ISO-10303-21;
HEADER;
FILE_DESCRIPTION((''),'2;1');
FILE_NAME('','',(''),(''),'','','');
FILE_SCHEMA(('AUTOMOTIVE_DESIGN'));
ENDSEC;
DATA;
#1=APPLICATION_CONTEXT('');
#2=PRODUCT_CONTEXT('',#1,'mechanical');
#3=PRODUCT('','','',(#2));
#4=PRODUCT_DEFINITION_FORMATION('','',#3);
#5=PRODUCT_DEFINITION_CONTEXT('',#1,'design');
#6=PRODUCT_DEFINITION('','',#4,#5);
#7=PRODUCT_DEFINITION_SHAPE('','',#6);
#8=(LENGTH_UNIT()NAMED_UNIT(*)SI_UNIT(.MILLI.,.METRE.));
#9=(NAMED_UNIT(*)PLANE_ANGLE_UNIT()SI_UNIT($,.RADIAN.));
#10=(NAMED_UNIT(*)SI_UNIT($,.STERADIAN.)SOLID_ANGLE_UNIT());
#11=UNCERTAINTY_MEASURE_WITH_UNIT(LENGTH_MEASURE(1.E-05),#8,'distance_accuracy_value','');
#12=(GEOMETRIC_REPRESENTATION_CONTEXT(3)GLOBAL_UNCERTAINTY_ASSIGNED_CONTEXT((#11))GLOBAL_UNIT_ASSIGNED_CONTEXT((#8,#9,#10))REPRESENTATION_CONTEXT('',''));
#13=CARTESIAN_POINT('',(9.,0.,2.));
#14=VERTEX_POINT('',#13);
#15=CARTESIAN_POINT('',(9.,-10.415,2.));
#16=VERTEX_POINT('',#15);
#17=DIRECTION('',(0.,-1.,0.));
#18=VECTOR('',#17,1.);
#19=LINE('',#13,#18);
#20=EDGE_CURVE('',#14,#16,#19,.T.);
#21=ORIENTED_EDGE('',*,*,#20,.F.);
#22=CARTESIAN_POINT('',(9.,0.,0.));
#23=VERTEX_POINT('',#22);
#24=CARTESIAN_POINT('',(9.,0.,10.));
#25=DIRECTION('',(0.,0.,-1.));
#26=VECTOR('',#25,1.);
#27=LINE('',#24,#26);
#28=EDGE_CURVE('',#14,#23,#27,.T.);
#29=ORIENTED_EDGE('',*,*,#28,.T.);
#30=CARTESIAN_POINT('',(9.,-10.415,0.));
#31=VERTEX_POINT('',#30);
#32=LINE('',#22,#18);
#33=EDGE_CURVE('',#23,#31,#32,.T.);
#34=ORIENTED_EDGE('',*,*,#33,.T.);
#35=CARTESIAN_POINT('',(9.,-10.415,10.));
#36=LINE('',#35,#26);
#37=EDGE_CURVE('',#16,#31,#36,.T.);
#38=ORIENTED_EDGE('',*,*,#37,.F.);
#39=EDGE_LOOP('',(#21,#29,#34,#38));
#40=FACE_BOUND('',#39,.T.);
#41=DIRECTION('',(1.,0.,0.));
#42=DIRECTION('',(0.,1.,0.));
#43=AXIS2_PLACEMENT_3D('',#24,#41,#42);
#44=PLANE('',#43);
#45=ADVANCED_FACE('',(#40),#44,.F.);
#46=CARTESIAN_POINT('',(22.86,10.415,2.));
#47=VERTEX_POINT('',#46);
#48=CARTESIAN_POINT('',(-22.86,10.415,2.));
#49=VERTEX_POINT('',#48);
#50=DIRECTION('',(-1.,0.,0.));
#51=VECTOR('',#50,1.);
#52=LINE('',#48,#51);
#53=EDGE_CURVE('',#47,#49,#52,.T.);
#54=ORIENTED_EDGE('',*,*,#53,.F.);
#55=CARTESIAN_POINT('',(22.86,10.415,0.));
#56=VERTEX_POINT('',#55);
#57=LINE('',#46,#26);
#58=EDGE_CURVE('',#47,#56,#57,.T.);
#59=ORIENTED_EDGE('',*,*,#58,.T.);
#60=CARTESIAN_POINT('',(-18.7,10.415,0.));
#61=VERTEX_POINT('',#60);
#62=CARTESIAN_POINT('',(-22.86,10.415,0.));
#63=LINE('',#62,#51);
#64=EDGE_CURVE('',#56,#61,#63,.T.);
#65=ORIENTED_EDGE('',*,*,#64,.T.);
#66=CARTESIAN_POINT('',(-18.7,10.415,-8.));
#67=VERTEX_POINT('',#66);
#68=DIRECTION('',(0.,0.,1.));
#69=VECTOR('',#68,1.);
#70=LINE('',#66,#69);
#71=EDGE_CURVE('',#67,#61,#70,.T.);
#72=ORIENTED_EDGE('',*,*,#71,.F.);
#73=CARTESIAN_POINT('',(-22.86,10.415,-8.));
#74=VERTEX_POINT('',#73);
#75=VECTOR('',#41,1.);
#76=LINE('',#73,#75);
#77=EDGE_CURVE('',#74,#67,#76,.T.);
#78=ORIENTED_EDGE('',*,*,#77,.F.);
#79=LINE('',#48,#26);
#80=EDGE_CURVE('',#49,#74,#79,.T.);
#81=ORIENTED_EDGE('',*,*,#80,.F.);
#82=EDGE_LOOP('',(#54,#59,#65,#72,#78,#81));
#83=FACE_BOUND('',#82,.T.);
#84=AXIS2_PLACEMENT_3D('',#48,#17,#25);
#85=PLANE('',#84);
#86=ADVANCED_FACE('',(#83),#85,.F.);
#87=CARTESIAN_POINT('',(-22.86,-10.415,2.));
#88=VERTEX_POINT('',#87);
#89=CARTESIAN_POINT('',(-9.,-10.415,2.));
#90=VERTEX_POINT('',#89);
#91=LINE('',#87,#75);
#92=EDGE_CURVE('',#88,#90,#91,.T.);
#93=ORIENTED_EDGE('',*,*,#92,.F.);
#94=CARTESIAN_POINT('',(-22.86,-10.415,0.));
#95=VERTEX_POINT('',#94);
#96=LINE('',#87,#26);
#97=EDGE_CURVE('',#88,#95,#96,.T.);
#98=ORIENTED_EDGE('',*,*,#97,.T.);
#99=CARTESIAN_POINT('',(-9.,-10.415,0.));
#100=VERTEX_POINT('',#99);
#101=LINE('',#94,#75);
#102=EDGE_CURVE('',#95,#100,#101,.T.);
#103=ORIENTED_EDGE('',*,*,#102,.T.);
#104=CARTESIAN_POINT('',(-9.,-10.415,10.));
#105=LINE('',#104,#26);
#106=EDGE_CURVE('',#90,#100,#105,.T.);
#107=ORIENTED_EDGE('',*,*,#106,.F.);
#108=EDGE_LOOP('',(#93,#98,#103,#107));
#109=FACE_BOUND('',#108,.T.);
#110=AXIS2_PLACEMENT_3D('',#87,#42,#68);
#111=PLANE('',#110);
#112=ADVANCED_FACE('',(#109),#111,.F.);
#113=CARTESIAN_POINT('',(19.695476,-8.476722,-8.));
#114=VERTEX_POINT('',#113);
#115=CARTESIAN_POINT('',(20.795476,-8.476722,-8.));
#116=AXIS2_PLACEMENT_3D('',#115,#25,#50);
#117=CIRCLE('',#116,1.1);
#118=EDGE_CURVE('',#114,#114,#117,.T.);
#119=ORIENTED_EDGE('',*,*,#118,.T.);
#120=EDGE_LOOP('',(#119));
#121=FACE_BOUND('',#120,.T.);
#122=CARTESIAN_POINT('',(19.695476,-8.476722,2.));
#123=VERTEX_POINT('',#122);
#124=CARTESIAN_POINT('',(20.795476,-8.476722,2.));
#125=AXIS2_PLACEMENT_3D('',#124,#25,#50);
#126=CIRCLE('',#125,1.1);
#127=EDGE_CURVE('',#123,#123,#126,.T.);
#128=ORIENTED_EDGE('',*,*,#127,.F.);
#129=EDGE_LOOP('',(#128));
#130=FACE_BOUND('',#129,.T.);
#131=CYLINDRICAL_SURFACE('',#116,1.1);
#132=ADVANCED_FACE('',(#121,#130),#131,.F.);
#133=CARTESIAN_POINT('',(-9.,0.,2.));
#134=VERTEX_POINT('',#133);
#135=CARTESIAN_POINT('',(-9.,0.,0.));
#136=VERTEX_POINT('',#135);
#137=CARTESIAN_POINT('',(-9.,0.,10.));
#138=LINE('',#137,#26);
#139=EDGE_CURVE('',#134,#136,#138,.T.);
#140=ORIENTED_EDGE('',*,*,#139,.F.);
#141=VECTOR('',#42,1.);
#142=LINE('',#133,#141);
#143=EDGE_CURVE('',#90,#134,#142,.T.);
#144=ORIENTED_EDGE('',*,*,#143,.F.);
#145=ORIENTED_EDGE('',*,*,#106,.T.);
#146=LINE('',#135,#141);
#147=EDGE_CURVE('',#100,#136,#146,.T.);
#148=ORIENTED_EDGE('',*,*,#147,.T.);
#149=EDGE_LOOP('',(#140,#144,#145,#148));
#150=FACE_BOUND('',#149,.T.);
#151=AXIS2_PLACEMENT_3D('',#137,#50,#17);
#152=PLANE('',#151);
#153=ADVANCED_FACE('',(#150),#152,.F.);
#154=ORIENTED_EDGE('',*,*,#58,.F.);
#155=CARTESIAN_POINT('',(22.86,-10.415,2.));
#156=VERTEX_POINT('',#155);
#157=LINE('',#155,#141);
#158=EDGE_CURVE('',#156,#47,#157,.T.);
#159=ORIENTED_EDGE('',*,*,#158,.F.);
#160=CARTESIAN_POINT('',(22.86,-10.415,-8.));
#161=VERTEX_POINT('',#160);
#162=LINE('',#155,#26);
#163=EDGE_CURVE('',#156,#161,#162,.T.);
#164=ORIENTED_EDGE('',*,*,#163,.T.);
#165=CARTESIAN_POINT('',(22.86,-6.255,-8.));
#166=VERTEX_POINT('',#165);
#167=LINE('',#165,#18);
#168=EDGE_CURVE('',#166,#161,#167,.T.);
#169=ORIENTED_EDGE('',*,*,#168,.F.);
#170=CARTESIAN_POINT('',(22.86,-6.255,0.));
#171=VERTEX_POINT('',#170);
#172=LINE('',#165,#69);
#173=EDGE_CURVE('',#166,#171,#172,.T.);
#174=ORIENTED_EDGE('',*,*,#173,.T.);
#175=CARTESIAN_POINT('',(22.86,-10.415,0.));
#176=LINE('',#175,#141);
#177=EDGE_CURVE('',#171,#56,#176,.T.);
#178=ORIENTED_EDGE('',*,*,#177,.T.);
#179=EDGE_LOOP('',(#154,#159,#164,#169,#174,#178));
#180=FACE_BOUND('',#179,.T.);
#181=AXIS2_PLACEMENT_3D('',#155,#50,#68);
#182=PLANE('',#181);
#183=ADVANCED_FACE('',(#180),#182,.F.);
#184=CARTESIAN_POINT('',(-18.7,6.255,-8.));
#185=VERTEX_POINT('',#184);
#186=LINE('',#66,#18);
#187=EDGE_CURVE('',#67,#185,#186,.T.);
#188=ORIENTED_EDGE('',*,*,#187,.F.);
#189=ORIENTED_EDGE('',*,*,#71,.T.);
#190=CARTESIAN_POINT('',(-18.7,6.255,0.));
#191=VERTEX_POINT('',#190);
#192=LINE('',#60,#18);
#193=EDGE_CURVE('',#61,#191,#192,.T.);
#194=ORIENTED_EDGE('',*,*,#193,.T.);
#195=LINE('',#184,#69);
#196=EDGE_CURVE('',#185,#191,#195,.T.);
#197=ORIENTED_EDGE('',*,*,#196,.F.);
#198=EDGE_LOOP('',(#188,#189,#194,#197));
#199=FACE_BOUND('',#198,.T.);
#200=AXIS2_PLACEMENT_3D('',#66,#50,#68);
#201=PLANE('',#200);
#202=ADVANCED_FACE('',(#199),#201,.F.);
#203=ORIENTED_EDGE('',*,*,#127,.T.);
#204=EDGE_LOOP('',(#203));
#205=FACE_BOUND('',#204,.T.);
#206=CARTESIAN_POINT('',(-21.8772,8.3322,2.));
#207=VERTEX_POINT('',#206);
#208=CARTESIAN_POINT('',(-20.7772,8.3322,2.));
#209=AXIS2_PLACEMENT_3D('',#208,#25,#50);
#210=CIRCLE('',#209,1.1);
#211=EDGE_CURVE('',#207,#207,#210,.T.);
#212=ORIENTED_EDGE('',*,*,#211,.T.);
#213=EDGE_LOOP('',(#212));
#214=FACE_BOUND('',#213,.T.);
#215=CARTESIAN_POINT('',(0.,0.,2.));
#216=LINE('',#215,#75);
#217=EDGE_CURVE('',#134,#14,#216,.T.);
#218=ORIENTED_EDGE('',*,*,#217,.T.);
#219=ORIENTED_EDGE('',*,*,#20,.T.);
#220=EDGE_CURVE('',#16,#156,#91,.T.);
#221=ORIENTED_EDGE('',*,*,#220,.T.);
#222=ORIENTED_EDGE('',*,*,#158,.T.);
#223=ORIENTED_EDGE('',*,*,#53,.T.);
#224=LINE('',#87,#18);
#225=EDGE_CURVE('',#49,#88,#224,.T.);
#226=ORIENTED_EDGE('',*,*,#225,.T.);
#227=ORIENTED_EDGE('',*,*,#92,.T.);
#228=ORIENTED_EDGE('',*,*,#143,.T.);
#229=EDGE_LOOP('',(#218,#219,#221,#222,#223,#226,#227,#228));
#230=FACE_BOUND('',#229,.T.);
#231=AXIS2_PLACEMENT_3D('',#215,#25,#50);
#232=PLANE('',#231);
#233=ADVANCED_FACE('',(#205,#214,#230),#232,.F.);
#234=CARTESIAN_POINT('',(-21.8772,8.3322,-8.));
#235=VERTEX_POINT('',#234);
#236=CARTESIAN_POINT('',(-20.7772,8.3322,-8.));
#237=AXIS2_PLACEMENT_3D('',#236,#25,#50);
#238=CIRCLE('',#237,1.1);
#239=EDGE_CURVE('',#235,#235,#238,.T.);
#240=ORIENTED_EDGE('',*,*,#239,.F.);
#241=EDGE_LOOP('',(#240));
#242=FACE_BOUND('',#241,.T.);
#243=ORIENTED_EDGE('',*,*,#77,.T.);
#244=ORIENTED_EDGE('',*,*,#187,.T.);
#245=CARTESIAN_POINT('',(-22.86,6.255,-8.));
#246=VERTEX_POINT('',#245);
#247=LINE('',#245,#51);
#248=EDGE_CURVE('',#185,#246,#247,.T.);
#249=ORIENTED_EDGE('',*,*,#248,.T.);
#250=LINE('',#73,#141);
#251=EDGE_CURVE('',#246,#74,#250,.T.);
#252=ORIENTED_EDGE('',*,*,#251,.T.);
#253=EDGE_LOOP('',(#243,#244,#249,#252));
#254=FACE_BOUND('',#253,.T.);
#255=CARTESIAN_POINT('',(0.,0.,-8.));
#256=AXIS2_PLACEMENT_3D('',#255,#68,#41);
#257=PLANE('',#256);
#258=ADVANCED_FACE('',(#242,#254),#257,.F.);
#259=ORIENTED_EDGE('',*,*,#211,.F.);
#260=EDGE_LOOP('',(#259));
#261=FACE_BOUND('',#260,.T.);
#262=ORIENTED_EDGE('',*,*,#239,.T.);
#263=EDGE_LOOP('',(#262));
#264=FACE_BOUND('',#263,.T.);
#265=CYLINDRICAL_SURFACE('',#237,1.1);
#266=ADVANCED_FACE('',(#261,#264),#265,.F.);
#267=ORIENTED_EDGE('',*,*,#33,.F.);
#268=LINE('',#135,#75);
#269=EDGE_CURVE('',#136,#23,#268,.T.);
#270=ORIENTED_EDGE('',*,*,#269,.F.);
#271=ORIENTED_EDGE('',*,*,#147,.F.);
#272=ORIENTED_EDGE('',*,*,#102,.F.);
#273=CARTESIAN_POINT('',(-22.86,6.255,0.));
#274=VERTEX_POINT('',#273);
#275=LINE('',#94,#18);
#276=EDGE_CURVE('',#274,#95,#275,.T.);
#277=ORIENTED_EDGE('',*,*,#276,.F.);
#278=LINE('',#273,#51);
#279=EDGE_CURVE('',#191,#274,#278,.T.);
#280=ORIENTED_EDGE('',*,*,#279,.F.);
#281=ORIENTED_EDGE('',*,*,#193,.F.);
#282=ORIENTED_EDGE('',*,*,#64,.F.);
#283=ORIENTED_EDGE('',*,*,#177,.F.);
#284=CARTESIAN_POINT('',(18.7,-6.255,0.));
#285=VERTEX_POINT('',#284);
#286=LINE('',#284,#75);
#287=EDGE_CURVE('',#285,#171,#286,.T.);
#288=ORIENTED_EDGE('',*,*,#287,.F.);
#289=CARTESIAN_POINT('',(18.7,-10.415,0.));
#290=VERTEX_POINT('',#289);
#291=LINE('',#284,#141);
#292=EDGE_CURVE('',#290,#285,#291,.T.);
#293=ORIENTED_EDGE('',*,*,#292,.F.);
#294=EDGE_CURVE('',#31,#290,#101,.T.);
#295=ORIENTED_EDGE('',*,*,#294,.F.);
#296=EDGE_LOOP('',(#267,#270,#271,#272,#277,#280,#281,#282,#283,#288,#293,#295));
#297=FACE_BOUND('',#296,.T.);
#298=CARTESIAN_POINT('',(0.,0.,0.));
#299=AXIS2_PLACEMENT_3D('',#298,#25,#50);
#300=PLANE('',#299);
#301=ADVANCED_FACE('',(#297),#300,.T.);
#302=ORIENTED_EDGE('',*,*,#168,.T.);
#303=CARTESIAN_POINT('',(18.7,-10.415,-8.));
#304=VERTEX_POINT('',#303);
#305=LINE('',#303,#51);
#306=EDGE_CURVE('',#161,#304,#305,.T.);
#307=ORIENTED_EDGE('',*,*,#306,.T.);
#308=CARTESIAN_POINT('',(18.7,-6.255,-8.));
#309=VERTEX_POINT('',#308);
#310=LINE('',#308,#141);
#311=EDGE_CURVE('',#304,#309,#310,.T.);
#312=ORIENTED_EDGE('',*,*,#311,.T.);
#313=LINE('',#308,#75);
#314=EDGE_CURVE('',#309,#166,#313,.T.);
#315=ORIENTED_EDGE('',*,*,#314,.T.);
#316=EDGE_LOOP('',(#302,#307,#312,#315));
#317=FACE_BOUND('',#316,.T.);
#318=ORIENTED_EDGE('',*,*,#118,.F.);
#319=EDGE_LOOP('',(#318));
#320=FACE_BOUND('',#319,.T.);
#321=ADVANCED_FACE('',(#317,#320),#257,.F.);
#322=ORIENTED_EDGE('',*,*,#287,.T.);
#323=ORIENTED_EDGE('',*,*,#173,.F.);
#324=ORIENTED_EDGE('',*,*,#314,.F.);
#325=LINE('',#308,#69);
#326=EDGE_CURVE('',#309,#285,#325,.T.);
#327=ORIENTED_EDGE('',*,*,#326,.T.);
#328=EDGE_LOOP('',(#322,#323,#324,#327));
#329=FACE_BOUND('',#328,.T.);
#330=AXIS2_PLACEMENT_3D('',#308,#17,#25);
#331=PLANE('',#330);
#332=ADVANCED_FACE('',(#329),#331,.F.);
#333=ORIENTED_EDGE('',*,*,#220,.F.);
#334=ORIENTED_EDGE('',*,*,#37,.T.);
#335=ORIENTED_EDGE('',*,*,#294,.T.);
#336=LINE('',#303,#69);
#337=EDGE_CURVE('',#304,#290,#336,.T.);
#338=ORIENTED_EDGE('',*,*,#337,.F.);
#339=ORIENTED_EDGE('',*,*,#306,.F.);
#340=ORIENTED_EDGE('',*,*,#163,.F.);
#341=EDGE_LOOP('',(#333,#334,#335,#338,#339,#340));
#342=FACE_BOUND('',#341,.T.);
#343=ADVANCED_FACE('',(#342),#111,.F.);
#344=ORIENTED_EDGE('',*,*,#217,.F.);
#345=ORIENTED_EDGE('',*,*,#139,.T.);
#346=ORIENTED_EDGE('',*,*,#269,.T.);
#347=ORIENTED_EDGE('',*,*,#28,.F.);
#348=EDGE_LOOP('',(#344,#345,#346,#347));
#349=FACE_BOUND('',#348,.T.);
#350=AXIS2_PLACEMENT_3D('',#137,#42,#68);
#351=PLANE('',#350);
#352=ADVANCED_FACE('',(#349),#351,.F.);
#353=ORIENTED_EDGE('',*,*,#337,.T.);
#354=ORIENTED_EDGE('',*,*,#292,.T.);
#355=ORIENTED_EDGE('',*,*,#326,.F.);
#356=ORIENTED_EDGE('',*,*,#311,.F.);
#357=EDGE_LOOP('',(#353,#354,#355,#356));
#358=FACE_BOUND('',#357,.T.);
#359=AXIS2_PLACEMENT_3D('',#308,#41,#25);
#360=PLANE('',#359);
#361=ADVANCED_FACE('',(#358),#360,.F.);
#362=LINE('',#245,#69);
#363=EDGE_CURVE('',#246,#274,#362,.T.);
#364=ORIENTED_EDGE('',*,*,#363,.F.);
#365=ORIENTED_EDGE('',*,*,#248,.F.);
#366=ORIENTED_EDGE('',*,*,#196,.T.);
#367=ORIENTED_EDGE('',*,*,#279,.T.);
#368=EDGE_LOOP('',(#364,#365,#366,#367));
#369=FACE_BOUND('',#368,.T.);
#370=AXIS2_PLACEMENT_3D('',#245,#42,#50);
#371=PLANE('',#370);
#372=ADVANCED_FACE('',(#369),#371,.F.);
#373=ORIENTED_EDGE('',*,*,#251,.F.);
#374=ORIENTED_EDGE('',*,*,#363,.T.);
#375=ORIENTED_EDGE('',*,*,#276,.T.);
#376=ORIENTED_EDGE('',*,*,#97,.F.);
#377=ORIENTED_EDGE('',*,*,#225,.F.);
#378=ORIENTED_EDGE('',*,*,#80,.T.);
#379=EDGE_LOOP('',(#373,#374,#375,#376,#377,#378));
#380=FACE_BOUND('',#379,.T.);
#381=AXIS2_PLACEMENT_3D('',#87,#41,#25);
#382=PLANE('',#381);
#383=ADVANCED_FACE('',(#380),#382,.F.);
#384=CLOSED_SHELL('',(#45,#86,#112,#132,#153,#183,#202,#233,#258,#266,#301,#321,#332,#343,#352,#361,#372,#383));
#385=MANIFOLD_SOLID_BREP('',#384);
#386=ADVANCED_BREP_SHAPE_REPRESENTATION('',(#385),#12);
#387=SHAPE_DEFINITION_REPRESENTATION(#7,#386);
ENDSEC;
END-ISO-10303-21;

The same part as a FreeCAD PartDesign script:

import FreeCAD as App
import Part
import Sketcher
Q = App.Units.Quantity

doc = App.newDocument("Part")
body = doc.addObject("PartDesign::Body", "Body")

sketch1 = body.newObject("Sketcher::SketchObject", "Sketch")
sketch1.AttachmentSupport = (doc.getObject("XY_Plane"), [""])
sketch1.MapMode = "FlatFace"
sketch1.addGeometry([
    Part.LineSegment(App.Vector(-23, 10, 0), App.Vector(-23, -10, 0)),
    Part.LineSegment(App.Vector(-23, -10, 0), App.Vector(23, -10, 0)),
    Part.LineSegment(App.Vector(23, -10, 0), App.Vector(23, 10, 0)),
    Part.LineSegment(App.Vector(23, 10, 0), App.Vector(-23, 10, 0)),
], False)
sketch1.addConstraint([
    Sketcher.Constraint("Coincident", 0, 2, 1, 1),
    Sketcher.Constraint("Coincident", 1, 2, 2, 1),
    Sketcher.Constraint("Coincident", 2, 2, 3, 1),
    Sketcher.Constraint("Coincident", 3, 2, 0, 1),
    Sketcher.Constraint("Vertical", 0),
    Sketcher.Constraint("Horizontal", 1),
    Sketcher.Constraint("Vertical", 2),
    Sketcher.Constraint("Horizontal", 3),
    Sketcher.Constraint("Symmetric", 0, 2, 2, 2, -1, 1),
    Sketcher.Constraint("DistanceX", 1, 1, 1, 2, Q("45.72 mm")),
    Sketcher.Constraint("DistanceY", 0, 2, 0, 1, Q("20.83 mm")),
])
pad1 = body.newObject("PartDesign::Pad", "Pad")
pad1.Profile = sketch1
pad1.Length = 2

sketch2 = body.newObject("Sketcher::SketchObject", "Sketch001")
sketch2.AttachmentSupport = (doc.getObject("XY_Plane"), [""])
sketch2.MapMode = "FlatFace"
sketch2.addGeometry([
    Part.LineSegment(App.Vector(9, 0, 0), App.Vector(9, -10, 0)),
    Part.LineSegment(App.Vector(9, -10, 0), App.Vector(-9, -10, 0)),
    Part.LineSegment(App.Vector(-9, -10, 0), App.Vector(-9, 0, 0)),
    Part.LineSegment(App.Vector(-9, 0, 0), App.Vector(9, 0, 0)),
], False)
sketch2.addConstraint([
    Sketcher.Constraint("Coincident", 0, 2, 1, 1),
    Sketcher.Constraint("Coincident", 1, 2, 2, 1),
    Sketcher.Constraint("Coincident", 2, 2, 3, 1),
    Sketcher.Constraint("Coincident", 3, 2, 0, 1),
    Sketcher.Constraint("Vertical", 0),
    Sketcher.Constraint("Horizontal", 1),
    Sketcher.Constraint("Vertical", 2),
    Sketcher.Constraint("Horizontal", 3),
    Sketcher.Constraint("Symmetric", 2, 2, 3, 2, -1, 1),
    Sketcher.Constraint("DistanceX", 1, 2, 1, 1, Q("18 mm")),
    Sketcher.Constraint("DistanceY", 0, 2, 0, 1, Q("10.415 mm")),
])
pocket1 = body.newObject("PartDesign::Pocket", "Pocket")
pocket1.Profile = sketch2
pocket1.Length = 10
pocket1.Reversed = True

sketch3 = body.newObject("Sketcher::SketchObject", "Sketch002")
sketch3.AttachmentSupport = (doc.getObject("XY_Plane"), [""])
sketch3.MapMode = "FlatFace"
sketch3.addGeometry([
    Part.LineSegment(App.Vector(-18.7, 10.4, 0), App.Vector(-18.7, 6.3, 0)),
    Part.LineSegment(App.Vector(-18.7, 6.3, 0), App.Vector(-22.9, 6.3, 0)),
    Part.LineSegment(App.Vector(-22.9, 6.3, 0), App.Vector(-22.9, 10.4, 0)),
    Part.LineSegment(App.Vector(-22.9, 10.4, 0), App.Vector(-18.7, 10.4, 0)),
    Part.LineSegment(App.Vector(22.9, -6.3, 0), App.Vector(22.9, -10.4, 0)),
    Part.LineSegment(App.Vector(22.9, -10.4, 0), App.Vector(18.7, -10.4, 0)),
    Part.LineSegment(App.Vector(18.7, -10.4, 0), App.Vector(18.7, -6.3, 0)),
    Part.LineSegment(App.Vector(18.7, -6.3, 0), App.Vector(22.9, -6.3, 0)),
], False)
sketch3.addConstraint([
    Sketcher.Constraint("Coincident", 0, 2, 1, 1),
    Sketcher.Constraint("Coincident", 1, 2, 2, 1),
    Sketcher.Constraint("Coincident", 2, 2, 3, 1),
    Sketcher.Constraint("Coincident", 3, 2, 0, 1),
    Sketcher.Constraint("Coincident", 4, 2, 5, 1),
    Sketcher.Constraint("Coincident", 5, 2, 6, 1),
    Sketcher.Constraint("Coincident", 6, 2, 7, 1),
    Sketcher.Constraint("Coincident", 7, 2, 4, 1),
    Sketcher.Constraint("Vertical", 0),
    Sketcher.Constraint("Horizontal", 1),
    Sketcher.Constraint("Vertical", 2),
    Sketcher.Constraint("Horizontal", 3),
    Sketcher.Constraint("Vertical", 4),
    Sketcher.Constraint("Horizontal", 5),
    Sketcher.Constraint("Vertical", 6),
    Sketcher.Constraint("Horizontal", 7),
    Sketcher.Constraint("Symmetric", 2, 2, 4, 2, -1, 1),
    Sketcher.Constraint("Symmetric", 0, 2, 6, 2, -1, 1),
    Sketcher.Constraint("Equal", 7, 0),
    Sketcher.Constraint("DistanceX", 1, 2, 1, 1, Q("4.16 mm")),
    Sketcher.Constraint("DistanceX", 0, 2, -1, 1, Q("18.7 mm")),
    Sketcher.Constraint("DistanceY", 4, 2, 0, 2, Q("16.67 mm")),
])
pad2 = body.newObject("PartDesign::Pad", "Pad001")
pad2.Profile = sketch3
pad2.Length = 8
pad2.Reversed = True

sketch4 = body.newObject("Sketcher::SketchObject", "Sketch003")
sketch4.AttachmentSupport = (doc.getObject("XY_Plane"), [""])
sketch4.MapMode = "FlatFace"
sketch4.AttachmentOffset = App.Placement(App.Vector(0, 0, -8), App.Rotation())
sketch4.addGeometry([
    Part.Circle(App.Vector(20.8, -8.5, 0), App.Vector(0, 0, 1), 1.1),
    Part.Circle(App.Vector(-20.8, 8.3, 0), App.Vector(0, 0, 1), 1.1),
], False)
sketch4.addConstraint([
    Sketcher.Constraint("Equal", 0, 1),
    Sketcher.Constraint("Diameter", 0, Q("2.2 mm")),
    Sketcher.Constraint("DistanceX", 1, 3, -1, 1, Q("20.7772 mm")),
    Sketcher.Constraint("DistanceY", -1, 1, 1, 3, Q("8.3322 mm")),
    Sketcher.Constraint("DistanceX", -1, 1, 0, 3, Q("20.795476 mm")),
    Sketcher.Constraint("DistanceY", 0, 3, -1, 1, Q("8.476722 mm")),
])
doc.recompute()
hole = body.newObject("PartDesign::Hole", "Hole")
hole.Profile = sketch4
hole.ThreadType = "None"
hole.Diameter = 2.2
hole.DepthType = "ThroughAll"
hole.Reversed = True

doc.recompute()
